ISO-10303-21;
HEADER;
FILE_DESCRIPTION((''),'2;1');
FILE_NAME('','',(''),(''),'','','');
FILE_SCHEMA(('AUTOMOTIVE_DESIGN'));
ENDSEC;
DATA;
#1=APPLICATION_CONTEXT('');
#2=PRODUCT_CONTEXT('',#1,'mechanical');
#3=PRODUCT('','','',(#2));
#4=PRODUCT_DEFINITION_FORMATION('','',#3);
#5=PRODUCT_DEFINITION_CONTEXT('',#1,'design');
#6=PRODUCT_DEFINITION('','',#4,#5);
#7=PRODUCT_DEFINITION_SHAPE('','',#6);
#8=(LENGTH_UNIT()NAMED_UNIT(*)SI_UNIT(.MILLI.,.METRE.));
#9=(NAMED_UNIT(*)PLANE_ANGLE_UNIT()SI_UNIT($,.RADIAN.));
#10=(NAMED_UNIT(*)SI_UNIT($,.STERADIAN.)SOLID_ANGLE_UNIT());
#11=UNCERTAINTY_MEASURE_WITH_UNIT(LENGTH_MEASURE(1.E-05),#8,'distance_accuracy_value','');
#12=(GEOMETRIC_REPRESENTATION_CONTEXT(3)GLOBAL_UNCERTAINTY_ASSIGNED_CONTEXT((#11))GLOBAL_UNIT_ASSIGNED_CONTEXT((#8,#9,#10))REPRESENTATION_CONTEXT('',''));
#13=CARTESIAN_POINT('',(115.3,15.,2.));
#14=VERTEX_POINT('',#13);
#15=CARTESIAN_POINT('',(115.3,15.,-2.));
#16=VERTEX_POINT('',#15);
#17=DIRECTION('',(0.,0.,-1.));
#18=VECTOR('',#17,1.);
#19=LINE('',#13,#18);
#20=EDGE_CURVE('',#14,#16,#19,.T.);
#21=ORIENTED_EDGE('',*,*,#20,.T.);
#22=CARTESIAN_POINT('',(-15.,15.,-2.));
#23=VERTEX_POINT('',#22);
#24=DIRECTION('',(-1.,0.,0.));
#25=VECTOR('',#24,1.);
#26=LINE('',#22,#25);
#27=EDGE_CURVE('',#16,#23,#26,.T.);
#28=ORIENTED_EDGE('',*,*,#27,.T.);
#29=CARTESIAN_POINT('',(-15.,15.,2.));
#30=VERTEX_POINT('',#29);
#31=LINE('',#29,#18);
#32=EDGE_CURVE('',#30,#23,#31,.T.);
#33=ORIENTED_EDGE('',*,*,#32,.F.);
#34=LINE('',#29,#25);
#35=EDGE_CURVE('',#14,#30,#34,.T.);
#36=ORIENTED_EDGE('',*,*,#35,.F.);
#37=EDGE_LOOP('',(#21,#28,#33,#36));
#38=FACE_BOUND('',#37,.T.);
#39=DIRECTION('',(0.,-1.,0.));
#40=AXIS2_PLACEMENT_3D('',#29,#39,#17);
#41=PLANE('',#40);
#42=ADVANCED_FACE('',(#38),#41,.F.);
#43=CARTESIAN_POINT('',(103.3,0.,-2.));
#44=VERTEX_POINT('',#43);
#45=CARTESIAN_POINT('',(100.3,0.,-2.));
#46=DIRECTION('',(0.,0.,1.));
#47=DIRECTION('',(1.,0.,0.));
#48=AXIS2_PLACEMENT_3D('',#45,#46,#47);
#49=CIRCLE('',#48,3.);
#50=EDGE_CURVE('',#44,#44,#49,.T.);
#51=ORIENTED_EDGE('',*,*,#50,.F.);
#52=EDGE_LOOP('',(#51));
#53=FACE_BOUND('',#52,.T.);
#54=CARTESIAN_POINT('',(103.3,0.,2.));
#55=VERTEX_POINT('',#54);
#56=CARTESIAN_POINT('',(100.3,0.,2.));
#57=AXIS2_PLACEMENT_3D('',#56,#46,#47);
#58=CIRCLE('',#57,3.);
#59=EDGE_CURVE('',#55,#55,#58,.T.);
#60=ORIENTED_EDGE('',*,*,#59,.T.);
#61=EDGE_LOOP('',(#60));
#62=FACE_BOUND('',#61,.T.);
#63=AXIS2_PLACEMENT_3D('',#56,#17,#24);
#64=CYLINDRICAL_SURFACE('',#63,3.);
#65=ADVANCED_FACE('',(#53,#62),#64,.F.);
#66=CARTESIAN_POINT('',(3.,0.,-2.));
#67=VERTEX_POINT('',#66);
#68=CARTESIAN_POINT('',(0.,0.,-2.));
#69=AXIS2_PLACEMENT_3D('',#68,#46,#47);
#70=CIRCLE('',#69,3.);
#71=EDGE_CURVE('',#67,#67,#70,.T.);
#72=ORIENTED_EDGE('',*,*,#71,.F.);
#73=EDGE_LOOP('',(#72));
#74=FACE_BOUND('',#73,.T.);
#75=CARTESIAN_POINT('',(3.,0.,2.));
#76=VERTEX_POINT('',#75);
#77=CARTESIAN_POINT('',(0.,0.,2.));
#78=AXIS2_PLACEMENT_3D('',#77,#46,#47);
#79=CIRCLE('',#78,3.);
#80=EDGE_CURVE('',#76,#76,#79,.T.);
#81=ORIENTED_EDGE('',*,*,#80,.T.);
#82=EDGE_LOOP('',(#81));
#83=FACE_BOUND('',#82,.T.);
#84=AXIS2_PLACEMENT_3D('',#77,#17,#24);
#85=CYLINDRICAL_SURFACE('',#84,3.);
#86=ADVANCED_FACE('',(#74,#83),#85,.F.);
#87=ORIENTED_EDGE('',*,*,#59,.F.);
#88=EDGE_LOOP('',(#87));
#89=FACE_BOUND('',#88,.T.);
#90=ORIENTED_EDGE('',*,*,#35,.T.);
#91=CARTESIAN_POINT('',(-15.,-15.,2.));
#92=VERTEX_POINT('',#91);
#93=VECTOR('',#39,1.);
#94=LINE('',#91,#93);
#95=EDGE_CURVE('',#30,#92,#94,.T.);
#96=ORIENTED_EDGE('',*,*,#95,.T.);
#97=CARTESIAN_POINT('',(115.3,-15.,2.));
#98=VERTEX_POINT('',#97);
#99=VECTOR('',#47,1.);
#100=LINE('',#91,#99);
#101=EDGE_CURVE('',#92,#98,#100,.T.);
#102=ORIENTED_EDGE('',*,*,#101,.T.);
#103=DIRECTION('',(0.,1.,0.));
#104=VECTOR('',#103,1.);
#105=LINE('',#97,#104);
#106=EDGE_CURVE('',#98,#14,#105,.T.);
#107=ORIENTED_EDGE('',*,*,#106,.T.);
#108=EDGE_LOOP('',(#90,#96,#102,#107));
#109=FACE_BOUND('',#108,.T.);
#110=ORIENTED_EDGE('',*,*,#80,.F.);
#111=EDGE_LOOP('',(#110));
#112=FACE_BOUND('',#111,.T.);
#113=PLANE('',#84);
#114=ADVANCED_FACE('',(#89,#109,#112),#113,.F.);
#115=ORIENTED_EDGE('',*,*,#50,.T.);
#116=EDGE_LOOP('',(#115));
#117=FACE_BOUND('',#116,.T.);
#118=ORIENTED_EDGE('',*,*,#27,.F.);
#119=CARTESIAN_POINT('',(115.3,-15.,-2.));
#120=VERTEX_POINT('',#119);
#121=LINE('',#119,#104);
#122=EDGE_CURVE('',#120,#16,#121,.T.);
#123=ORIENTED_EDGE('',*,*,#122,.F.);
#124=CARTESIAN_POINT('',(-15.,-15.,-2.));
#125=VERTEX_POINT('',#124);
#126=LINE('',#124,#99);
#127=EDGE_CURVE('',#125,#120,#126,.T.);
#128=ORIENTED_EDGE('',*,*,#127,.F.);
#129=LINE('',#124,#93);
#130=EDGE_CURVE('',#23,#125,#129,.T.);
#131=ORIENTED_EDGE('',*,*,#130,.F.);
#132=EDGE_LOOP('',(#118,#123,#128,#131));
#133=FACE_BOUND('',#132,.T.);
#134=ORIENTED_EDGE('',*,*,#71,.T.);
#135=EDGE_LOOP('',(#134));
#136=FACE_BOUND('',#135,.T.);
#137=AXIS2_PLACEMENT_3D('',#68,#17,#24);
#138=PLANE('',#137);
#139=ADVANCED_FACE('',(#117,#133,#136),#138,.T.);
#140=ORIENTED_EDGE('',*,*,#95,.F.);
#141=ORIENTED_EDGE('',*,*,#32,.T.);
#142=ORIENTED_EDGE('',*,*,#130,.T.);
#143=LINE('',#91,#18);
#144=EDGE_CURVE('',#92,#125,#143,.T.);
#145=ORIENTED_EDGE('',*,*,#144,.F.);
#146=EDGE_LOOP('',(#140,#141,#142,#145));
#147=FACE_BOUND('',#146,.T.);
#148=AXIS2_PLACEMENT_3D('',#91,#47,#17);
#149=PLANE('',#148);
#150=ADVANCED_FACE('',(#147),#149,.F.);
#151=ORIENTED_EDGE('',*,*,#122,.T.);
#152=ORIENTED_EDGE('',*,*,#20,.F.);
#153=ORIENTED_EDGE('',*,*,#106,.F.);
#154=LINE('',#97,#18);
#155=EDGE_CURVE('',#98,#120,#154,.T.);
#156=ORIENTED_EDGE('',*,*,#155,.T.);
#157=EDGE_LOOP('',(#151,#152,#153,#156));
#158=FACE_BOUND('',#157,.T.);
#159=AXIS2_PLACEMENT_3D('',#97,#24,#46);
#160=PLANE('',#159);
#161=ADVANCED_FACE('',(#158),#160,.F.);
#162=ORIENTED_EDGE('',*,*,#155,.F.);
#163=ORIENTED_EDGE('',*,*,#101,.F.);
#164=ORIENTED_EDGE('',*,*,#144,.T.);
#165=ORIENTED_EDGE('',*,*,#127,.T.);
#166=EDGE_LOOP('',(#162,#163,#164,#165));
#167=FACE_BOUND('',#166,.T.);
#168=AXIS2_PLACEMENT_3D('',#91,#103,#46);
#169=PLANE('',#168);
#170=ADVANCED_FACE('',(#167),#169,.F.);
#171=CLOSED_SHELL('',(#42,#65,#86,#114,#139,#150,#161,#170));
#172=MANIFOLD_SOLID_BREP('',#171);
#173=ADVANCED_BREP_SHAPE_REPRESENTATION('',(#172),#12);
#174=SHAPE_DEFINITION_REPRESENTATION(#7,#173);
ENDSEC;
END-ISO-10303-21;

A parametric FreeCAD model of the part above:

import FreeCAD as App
import Part
import Sketcher
Q = App.Units.Quantity


def add_polygon(sketch, points):
    """Adds a closed chain of lines whose ends are joined by coincident constraints."""
    first, n = sketch.GeometryCount, len(points)
    for a, b in zip(points, points[1:] + points[:1]):
        sketch.addGeometry(Part.LineSegment(App.Vector(*a, 0), App.Vector(*b, 0)), False)
    for i in range(n):
        sketch.addConstraint(Sketcher.Constraint("Coincident", first + i, 2, first + (i + 1) % n, 1))

doc = App.newDocument("Part")
params = doc.addObject("Spreadsheet::Sheet", "Params")
for row, (alias, value) in enumerate([
    ("sketch1_diameter", "6 mm"),
    ("sketch1_height", "30 mm"),
    ("sketch1_width", "130.3 mm"),
    ("pad1_length", "4 mm"),
], start=1):
    params.set(f"A{row}", alias)
    params.set(f"B{row}", "=" + value)
    params.setAlias(f"B{row}", alias)

body = doc.addObject("PartDesign::Body", "Body")

sketch1 = doc.addObject("Sketcher::SketchObject", "Sketch")
body.addObject(sketch1)
sketch1.AttachmentSupport = (doc.XY_Plane, [""])
sketch1.MapMode = "FlatFace"
add_polygon(sketch1, [(-15, 15), (-15, -15), (115.3, -15), (115.3, 15)])
sketch1.addGeometry(Part.Circle(App.Vector(0, 0, 0), App.Vector(0, 0, 1), 3), False)
sketch1.addGeometry(Part.Circle(App.Vector(100.3, 0, 0), App.Vector(0, 0, 1), 3), False)
sketch1.addConstraint(Sketcher.Constraint("Vertical", 0))
sketch1.addConstraint(Sketcher.Constraint("Horizontal", 1))
sketch1.addConstraint(Sketcher.Constraint("Vertical", 2))
sketch1.addConstraint(Sketcher.Constraint("Horizontal", 3))
sketch1.addConstraint(Sketcher.Constraint("Coincident", 4, 3, -1, 1))
sketch1.addConstraint(Sketcher.Constraint("Equal", 4, 5))
sketch1.addConstraint(Sketcher.Constraint("PointOnObject", 5, 3, -1))
sketch1.addConstraint(Sketcher.Constraint("Diameter", 4, Q("6 mm")))
sketch1.addConstraint(Sketcher.Constraint("DistanceY", 0, 2, 0, 1, Q("30 mm")))
sketch1.addConstraint(Sketcher.Constraint("DistanceX", 1, 1, 1, 2, Q("130.3 mm")))
sketch1.addConstraint(Sketcher.Constraint("DistanceX", 0, 2, -1, 1, Q("15 mm")))
sketch1.addConstraint(Sketcher.Constraint("DistanceY", 0, 2, -1, 1, Q("15 mm")))
sketch1.addConstraint(Sketcher.Constraint("DistanceX", 5, 3, 1, 2, Q("15 mm")))
sketch1.setExpression("Constraints[11]", "Params.sketch1_diameter")
sketch1.setExpression("Constraints[12]", "Params.sketch1_height")
sketch1.setExpression("Constraints[13]", "Params.sketch1_width")
pad1 = doc.addObject("PartDesign::Pad", "Pad")
body.addObject(pad1)
pad1.Profile = sketch1
pad1.setExpression("Length", "Params.pad1_length")
pad1.Midplane = True

doc.recompute()
